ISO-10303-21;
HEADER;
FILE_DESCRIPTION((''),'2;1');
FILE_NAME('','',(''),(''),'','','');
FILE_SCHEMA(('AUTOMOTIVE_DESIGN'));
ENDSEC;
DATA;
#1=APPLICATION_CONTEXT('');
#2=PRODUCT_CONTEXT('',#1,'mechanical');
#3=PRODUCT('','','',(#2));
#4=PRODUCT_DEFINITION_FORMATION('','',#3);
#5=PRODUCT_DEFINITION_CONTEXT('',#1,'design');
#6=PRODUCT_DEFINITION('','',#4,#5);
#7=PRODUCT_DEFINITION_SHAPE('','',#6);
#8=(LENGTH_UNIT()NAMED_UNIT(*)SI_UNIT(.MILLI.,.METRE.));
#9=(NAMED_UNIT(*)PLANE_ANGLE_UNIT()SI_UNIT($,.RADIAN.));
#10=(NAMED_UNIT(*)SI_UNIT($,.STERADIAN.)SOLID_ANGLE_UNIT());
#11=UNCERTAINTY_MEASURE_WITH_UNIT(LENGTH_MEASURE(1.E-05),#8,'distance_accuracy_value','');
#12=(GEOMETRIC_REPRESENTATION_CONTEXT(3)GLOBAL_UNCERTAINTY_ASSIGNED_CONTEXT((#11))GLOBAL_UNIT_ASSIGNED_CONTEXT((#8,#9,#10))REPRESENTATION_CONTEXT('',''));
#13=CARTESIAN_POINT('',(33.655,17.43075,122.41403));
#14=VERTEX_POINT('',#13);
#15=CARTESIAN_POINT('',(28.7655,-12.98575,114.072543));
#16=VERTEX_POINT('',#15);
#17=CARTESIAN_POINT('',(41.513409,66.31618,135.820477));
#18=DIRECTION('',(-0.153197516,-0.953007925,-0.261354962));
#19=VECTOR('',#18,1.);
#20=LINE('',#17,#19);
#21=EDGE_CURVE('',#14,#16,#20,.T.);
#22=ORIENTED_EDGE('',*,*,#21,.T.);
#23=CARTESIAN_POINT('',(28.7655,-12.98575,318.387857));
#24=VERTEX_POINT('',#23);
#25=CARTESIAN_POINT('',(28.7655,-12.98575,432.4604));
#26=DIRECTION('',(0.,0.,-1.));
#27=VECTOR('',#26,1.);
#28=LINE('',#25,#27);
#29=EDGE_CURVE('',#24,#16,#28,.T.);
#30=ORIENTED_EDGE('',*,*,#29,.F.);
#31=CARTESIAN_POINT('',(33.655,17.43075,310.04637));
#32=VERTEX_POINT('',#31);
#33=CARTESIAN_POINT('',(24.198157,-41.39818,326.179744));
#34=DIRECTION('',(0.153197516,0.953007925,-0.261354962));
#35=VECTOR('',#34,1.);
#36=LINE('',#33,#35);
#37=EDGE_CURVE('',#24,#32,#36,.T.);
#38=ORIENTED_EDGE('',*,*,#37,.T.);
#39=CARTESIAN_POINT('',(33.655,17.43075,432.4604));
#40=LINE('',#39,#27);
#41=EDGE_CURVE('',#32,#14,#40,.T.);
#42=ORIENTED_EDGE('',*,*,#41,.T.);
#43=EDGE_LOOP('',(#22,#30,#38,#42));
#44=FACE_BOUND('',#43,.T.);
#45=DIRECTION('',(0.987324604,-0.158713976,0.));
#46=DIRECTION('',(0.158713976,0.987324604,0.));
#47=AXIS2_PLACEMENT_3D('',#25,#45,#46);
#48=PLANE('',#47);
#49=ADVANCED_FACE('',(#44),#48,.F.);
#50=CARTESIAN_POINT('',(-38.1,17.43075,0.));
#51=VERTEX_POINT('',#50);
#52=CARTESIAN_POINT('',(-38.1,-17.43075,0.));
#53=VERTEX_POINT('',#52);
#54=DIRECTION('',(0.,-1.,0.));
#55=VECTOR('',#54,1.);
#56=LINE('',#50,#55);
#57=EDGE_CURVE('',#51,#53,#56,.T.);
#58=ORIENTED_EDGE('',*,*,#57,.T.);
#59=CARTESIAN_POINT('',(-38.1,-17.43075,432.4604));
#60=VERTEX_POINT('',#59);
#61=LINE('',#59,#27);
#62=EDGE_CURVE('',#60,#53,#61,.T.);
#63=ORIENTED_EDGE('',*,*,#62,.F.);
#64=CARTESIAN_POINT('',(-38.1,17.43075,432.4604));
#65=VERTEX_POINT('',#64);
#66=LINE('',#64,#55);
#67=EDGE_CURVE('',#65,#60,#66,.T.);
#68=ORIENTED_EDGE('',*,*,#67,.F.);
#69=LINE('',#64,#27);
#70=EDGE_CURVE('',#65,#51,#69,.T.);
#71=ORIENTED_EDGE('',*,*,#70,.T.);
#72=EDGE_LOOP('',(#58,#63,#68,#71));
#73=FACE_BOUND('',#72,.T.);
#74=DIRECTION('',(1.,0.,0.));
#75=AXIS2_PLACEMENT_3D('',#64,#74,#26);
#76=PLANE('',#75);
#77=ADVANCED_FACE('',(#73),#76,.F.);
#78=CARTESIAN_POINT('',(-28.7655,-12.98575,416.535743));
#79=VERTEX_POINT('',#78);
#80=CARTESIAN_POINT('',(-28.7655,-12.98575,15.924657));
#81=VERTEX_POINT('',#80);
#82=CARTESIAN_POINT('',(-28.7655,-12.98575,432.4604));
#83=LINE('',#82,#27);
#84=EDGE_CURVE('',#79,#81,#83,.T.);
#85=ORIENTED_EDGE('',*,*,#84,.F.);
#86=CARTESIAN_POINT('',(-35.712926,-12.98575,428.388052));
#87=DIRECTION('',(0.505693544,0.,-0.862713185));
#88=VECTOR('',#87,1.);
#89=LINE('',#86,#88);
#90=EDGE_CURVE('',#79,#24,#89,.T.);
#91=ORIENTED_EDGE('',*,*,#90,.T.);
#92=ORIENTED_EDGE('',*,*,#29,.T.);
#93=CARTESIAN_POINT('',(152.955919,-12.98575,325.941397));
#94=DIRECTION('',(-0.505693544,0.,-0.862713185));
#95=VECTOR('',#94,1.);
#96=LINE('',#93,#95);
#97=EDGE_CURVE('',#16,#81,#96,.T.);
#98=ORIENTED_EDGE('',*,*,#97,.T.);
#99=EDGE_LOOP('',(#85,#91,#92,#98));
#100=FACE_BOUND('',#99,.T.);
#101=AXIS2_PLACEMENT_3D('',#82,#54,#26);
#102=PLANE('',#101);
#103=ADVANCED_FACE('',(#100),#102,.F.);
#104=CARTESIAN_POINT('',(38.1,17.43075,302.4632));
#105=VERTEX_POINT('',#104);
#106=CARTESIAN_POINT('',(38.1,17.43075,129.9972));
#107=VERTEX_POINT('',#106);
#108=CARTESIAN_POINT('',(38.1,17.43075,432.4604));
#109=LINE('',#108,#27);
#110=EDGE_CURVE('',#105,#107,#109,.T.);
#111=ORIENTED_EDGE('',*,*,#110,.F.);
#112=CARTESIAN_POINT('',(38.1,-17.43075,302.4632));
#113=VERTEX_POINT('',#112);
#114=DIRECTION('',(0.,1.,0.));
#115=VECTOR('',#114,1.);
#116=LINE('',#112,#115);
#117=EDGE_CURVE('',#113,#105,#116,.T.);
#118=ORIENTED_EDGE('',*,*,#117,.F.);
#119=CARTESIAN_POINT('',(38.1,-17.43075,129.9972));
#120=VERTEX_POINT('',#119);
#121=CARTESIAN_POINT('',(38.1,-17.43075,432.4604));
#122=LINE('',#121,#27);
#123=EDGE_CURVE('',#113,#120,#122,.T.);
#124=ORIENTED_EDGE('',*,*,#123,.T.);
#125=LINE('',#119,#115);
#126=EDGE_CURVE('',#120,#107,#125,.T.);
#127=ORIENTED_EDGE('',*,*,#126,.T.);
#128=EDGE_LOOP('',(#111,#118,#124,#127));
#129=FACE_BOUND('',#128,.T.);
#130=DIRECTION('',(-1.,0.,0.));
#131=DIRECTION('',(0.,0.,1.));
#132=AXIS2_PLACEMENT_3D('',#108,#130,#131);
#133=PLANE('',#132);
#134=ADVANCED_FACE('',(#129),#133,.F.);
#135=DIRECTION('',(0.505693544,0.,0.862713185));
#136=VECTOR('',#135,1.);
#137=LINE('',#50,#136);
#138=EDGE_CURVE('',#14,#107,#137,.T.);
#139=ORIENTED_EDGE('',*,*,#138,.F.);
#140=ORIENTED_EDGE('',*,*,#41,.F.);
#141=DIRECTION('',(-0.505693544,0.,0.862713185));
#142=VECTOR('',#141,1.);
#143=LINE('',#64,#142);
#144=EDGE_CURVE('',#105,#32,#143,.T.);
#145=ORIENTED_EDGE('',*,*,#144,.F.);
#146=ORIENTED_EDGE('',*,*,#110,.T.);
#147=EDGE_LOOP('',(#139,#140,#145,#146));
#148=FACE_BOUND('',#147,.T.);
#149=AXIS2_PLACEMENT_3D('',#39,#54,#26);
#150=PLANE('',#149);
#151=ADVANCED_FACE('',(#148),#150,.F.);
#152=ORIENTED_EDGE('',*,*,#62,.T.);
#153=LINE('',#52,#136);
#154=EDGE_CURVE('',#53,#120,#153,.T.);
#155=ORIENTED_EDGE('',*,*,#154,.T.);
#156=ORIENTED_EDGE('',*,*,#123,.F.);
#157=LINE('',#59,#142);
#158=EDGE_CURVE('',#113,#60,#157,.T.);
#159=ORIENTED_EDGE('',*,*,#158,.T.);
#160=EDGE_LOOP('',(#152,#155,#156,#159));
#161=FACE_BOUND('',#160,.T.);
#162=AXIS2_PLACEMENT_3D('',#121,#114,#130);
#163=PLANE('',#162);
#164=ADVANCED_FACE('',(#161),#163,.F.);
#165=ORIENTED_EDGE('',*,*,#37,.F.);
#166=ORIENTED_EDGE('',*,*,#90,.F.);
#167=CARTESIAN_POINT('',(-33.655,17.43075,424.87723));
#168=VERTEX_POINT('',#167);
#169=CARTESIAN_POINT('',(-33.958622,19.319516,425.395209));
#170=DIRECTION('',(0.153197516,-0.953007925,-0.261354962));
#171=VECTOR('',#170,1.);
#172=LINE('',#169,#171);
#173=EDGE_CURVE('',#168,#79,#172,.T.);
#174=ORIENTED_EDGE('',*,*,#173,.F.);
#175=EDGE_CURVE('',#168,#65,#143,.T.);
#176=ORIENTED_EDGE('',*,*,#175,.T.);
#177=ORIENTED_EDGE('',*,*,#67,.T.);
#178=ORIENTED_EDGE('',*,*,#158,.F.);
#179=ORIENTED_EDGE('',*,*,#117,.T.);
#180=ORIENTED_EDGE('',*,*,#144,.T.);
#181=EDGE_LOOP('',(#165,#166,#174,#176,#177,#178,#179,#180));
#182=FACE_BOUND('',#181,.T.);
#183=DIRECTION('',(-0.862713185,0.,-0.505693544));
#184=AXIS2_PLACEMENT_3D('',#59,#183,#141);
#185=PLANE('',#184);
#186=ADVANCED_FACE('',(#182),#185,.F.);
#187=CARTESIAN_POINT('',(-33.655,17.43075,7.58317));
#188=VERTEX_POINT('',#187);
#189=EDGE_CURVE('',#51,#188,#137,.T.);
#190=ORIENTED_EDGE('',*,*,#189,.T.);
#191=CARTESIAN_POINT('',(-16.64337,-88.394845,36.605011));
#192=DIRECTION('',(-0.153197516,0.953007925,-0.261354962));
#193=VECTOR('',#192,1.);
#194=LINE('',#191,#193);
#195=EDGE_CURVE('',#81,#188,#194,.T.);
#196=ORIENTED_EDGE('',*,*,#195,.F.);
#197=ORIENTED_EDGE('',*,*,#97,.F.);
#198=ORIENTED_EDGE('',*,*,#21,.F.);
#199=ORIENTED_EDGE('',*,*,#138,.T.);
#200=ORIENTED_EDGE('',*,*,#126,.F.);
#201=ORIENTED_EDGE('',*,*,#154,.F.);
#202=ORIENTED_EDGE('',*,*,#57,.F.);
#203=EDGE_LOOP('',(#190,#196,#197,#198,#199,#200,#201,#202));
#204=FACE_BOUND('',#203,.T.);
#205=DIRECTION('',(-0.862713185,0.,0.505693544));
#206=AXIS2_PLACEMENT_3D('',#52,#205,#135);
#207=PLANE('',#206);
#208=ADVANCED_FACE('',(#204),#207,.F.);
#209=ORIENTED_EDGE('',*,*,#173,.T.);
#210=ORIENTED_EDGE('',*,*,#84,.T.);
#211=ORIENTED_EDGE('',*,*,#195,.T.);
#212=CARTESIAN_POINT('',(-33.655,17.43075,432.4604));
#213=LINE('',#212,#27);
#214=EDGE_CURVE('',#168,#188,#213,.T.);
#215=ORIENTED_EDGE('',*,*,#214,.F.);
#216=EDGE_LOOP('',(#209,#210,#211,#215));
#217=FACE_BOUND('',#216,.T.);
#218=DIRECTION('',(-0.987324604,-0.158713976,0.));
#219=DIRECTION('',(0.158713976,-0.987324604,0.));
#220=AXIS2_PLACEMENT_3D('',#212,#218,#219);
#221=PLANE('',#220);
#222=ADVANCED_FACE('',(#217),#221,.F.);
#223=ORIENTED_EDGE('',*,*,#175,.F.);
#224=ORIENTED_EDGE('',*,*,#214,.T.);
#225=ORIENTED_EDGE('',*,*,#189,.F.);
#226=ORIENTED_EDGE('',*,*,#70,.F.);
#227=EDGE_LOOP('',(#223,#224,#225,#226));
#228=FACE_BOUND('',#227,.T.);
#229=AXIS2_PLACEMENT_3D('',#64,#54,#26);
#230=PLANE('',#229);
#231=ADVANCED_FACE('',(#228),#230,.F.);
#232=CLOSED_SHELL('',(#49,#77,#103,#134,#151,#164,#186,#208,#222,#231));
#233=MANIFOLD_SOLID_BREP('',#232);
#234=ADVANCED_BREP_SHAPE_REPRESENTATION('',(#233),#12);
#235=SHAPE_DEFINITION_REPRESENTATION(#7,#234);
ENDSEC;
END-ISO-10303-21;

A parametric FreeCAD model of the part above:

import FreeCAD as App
import Part
import Sketcher
from FreeCAD import Vector
Q = App.Units.Quantity

doc = App.newDocument("Part")
body = doc.addObject("PartDesign::Body", "Body")

# Sketch on XY plane
sketch1 = doc.addObject("Sketcher::SketchObject", "Sketch")
body.addObject(sketch1)
sketch1.AttachmentSupport = (doc.XY_Plane, [""])
sketch1.MapMode = "FlatFace"
sketch1.addGeometry([
    Part.LineSegment(Vector(28.8, -13, 0), Vector(-28.8, -13, 0)),  # 0
    Part.LineSegment(Vector(-28.8, -13, 0), Vector(-33.7, 17.4, 0)),  # 1
    Part.LineSegment(Vector(-33.7, 17.4, 0), Vector(-38.1, 17.4, 0)),  # 2
    Part.LineSegment(Vector(-38.1, 17.4, 0), Vector(-38.1, -17.4, 0)),  # 3
    Part.LineSegment(Vector(-38.1, -17.4, 0), Vector(38.1, -17.4, 0)),  # 4
    Part.LineSegment(Vector(38.1, -17.4, 0), Vector(38.1, 17.4, 0)),  # 5
    Part.LineSegment(Vector(38.1, 17.4, 0), Vector(33.7, 17.4, 0)),  # 6
    Part.LineSegment(Vector(33.7, 17.4, 0), Vector(28.8, -13, 0)),  # 7
], False)
sketch1.addConstraint([
    Sketcher.Constraint("Coincident", 0, 2, 1, 1),
    Sketcher.Constraint("Coincident", 1, 2, 2, 1),
    Sketcher.Constraint("Coincident", 2, 2, 3, 1),
    Sketcher.Constraint("Coincident", 3, 2, 4, 1),
    Sketcher.Constraint("Coincident", 4, 2, 5, 1),
    Sketcher.Constraint("Coincident", 5, 2, 6, 1),
    Sketcher.Constraint("Coincident", 6, 2, 7, 1),
    Sketcher.Constraint("Coincident", 7, 2, 0, 1),
    Sketcher.Constraint("Horizontal", 0),
    Sketcher.Constraint("Horizontal", 2),
    Sketcher.Constraint("Vertical", 3),
    Sketcher.Constraint("Horizontal", 4),
    Sketcher.Constraint("Vertical", 5),
    Sketcher.Constraint("Horizontal", 6),
    Sketcher.Constraint("Symmetric", 2, 2, 4, 2, -1, 1),
    Sketcher.Constraint("Symmetric", 1, 2, 6, 2, -2),
    Sketcher.Constraint("Equal", 1, 7),
    Sketcher.Constraint("DistanceX", 4, 1, 4, 2, Q("3 in")),
    Sketcher.Constraint("DistanceX", 0, 2, 0, 1, Q("2.265 in")),
    Sketcher.Constraint("DistanceX", 2, 2, 2, 1, Q("0.175 in")),
    Sketcher.Constraint("DistanceY", 3, 2, 3, 1, Q("1.3725 in")),
    Sketcher.Constraint("DistanceY", 3, 2, 0, 2, Q("0.175 in")),
])
pad1 = doc.addObject("PartDesign::Pad", "Pad")
body.addObject(pad1)
pad1.Profile = sketch1
pad1.Length = Q("17.026 in")

# Sketch on XZ plane
sketch2 = doc.addObject("Sketcher::SketchObject", "Sketch001")
body.addObject(sketch2)
sketch2.AttachmentSupport = (doc.XZ_Plane, [""])
sketch2.MapMode = "FlatFace"
sketch2.addGeometry([
    Part.LineSegment(Vector(-38, 0, 0), Vector(38, 130, 0)),  # 0
    Part.LineSegment(Vector(38, 130, 0), Vector(38, 0, 0)),  # 1
    Part.LineSegment(Vector(38, 0, 0), Vector(-38, 0, 0)),  # 2
    Part.LineSegment(Vector(38, 302, 0), Vector(-38, 432, 0)),  # 3
    Part.LineSegment(Vector(-38, 432, 0), Vector(38, 432, 0)),  # 4
    Part.LineSegment(Vector(38, 432, 0), Vector(38, 302, 0)),  # 5
], False)
sketch2.addConstraint([
    Sketcher.Constraint("Coincident", 0, 2, 1, 1),
    Sketcher.Constraint("Coincident", 1, 2, 2, 1),
    Sketcher.Constraint("Coincident", 2, 2, 0, 1),
    Sketcher.Constraint("Coincident", 3, 2, 4, 1),
    Sketcher.Constraint("Coincident", 4, 2, 5, 1),
    Sketcher.Constraint("Coincident", 5, 2, 3, 1),
    Sketcher.Constraint("Vertical", 1),
    Sketcher.Constraint("Horizontal", 2),
    Sketcher.Constraint("Horizontal", 4),
    Sketcher.Constraint("Vertical", 5),
    Sketcher.Constraint("Symmetric", 1, 2, 2, 2, -1, 1),
    Sketcher.Constraint("Vertical", 2, 2, 3, 2),
    Sketcher.Constraint("Vertical", 1, 2, 4, 2),
    Sketcher.Constraint("Equal", 1, 5),
    Sketcher.Constraint("DistanceX", 2, 2, 2, 1, Q("3 in")),
    Sketcher.Constraint("DistanceY", 1, 2, 1, 1, Q("5.118 in")),
    Sketcher.Constraint("DistanceY", 0, 2, 5, 2, Q("6.79 in")),
])
pocket1 = doc.addObject("PartDesign::Pocket", "Pocket")
body.addObject(pocket1)
pocket1.Profile = sketch2
pocket1.Type = "ThroughAll"
pocket1.Midplane = True

doc.recompute()
